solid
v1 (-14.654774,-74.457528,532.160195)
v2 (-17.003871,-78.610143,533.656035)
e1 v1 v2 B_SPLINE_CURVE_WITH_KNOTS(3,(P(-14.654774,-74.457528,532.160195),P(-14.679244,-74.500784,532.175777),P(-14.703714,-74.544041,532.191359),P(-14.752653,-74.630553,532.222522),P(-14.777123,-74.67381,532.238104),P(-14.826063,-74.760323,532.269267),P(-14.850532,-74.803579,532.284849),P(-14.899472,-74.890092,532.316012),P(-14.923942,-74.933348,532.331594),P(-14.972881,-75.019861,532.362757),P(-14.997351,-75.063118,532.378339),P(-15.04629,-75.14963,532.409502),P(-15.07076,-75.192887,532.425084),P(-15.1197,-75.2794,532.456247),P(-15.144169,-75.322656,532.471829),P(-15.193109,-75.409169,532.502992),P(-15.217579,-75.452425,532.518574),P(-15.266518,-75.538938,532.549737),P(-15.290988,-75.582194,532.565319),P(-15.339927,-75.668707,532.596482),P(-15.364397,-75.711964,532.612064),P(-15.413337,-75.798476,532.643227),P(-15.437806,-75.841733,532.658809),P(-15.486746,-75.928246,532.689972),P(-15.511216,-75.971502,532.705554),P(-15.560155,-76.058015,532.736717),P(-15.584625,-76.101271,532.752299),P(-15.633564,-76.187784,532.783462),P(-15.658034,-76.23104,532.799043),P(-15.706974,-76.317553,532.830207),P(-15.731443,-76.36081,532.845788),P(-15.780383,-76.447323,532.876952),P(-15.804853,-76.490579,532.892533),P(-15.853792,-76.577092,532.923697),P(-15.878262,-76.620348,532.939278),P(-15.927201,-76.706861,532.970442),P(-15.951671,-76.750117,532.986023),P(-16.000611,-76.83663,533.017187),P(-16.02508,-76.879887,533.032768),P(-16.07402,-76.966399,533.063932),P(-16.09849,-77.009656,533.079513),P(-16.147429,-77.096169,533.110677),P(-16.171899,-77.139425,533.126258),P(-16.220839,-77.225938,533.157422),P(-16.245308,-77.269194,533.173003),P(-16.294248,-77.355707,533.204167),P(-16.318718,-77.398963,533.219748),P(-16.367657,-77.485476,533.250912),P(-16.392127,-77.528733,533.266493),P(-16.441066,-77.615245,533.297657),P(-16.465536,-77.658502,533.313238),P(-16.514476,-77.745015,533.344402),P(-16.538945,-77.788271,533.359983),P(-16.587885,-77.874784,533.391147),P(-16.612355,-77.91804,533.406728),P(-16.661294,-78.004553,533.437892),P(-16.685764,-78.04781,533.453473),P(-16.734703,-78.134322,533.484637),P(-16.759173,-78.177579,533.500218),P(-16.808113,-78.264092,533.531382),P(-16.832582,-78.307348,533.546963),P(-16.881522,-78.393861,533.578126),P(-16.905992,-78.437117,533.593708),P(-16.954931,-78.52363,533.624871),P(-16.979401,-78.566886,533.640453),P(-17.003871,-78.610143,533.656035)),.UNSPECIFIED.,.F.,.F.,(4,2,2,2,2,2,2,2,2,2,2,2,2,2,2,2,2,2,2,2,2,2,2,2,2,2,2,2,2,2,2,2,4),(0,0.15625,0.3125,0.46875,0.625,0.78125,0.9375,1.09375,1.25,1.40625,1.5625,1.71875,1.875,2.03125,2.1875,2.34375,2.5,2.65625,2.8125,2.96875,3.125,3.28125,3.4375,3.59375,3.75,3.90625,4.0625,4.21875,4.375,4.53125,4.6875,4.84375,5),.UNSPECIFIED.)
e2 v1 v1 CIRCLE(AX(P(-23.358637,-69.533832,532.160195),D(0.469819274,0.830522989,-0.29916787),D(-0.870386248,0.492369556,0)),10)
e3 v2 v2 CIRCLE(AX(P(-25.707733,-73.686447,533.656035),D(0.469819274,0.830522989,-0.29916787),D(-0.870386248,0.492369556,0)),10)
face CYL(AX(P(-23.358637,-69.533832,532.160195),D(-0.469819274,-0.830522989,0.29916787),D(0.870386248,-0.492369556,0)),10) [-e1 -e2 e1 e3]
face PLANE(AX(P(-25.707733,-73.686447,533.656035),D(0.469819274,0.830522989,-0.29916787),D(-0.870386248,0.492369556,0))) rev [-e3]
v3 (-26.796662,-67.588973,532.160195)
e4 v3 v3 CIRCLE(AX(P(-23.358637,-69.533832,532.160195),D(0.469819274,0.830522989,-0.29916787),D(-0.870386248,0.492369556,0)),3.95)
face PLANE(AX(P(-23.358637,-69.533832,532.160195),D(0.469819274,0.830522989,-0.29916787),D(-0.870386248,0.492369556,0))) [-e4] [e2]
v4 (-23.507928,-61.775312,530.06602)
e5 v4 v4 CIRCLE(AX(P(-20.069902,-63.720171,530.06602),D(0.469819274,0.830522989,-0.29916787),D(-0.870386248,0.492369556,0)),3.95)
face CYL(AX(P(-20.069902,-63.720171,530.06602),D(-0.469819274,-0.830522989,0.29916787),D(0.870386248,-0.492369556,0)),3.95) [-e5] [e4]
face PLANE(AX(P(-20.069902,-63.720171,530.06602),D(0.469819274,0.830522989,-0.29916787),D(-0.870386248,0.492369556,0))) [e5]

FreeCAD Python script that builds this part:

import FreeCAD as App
import Part
import Sketcher
from FreeCAD import Vector
Q = App.Units.Quantity

doc = App.newDocument("Part")
body = doc.addObject("PartDesign::Body", "Body")

# Sketch on an angled plane
sketch1 = doc.addObject("Sketcher::SketchObject", "Sketch")
body.addObject(sketch1)
sketch1.Placement = App.Placement(Vector(-109.434541, -193.452903, 69.684878), App.Rotation(Vector(0.879416892, -0.469819274, 0.076783975), Vector(-0.076783975, -0.29916787, -0.951106096), Vector(0.469819274, 0.830522989, -0.29916787), "ZXY"))
sketch1.addGeometry(Part.Circle(Vector(53, -484, 0), Vector(0, 0, 1), 10), False)
sketch1.addConstraint([
    Sketcher.Constraint("Diameter", 0, Q("20 mm")),
    Sketcher.Constraint("DistanceX", -1, 1, 0, 3, Q("52.98773 mm")),
    Sketcher.Constraint("DistanceY", 0, 3, -1, 1, Q("483.544948 mm")),
])
pad1 = doc.addObject("PartDesign::Pad", "Pad")
body.addObject(pad1)
pad1.Profile = sketch1
pad1.Length = 5

# Sketch on an angled plane
sketch2 = doc.addObject("Sketcher::SketchObject", "Sketch001")
body.addObject(sketch2)
sketch2.Placement = App.Placement(Vector(-107.085445, -189.300288, 68.189038), App.Rotation(Vector(0.879416892, -0.469819274, 0.076783975), Vector(-0.076783975, -0.29916787, -0.951106096), Vector(0.469819274, 0.830522989, -0.29916787), "ZXY"))
sketch2.addGeometry(Part.Circle(Vector(53, -483.5, 0), Vector(0, 0, 1), 4), False)
sketch2.addConstraint([
    Sketcher.Constraint("Diameter", 0, Q("7.9 mm")),
    Sketcher.Constraint("DistanceX", -1, 1, 0, 3, Q("52.98773 mm")),
    Sketcher.Constraint("DistanceY", 0, 3, -1, 1, Q("483.544948 mm")),
])
pad2 = doc.addObject("PartDesign::Pad", "Pad001")
body.addObject(pad2)
pad2.Profile = sketch2
pad2.Length = 7

doc.recompute()
